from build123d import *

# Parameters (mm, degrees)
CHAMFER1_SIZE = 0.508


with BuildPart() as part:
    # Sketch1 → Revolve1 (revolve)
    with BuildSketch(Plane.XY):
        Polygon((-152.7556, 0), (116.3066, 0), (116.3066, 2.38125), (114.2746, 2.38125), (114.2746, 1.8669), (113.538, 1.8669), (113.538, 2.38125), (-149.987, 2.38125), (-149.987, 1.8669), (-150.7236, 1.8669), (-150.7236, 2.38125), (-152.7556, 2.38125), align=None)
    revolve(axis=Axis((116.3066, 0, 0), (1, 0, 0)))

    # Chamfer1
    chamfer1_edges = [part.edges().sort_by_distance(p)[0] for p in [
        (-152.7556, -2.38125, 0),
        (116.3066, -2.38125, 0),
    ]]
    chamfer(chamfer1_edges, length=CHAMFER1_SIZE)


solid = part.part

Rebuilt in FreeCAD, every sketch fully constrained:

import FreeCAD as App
import Part
import Sketcher

V = App.Vector
Q = App.Units.Quantity


def edges_at(feature, points):
    """Names of the edges that pass closest to the given points."""
    edges = feature.Shape.Edges
    near = lambda p: min(range(len(edges)), key=lambda i: edges[i].distToShape(Part.Vertex(*p))[0])
    return sorted({f"Edge{near(p) + 1}" for p in points})

doc = App.newDocument("Part")
body = doc.addObject("PartDesign::Body", "Body")

sketch1 = body.newObject("Sketcher::SketchObject", "Sketch")
sketch1.AttachmentSupport = (doc.getObject("XY_Plane"), [""])
sketch1.MapMode = "FlatFace"
sketch1.addGeometry([
    Part.LineSegment(V(-152.8, 0, 0), V(116.3, 0, 0)),
    Part.LineSegment(V(116.3, 0, 0), V(116.3, 2.4, 0)),
    Part.LineSegment(V(116.3, 2.4, 0), V(114.3, 2.4, 0)),
    Part.LineSegment(V(114.3, 2.4, 0), V(114.3, 1.9, 0)),
    Part.LineSegment(V(114.3, 1.9, 0), V(113.5, 1.9, 0)),
    Part.LineSegment(V(113.5, 1.9, 0), V(113.5, 2.4, 0)),
    Part.LineSegment(V(113.5, 2.4, 0), V(-150, 2.4, 0)),
    Part.LineSegment(V(-150, 2.4, 0), V(-150, 1.9, 0)),
    Part.LineSegment(V(-150, 1.9, 0), V(-150.7, 1.9, 0)),
    Part.LineSegment(V(-150.7, 1.9, 0), V(-150.7, 2.4, 0)),
    Part.LineSegment(V(-150.7, 2.4, 0), V(-152.8, 2.4, 0)),
    Part.LineSegment(V(-152.8, 2.4, 0), V(-152.8, 0, 0)),
], False)
sketch1.addConstraint([
    Sketcher.Constraint("Coincident", 0, 2, 1, 1),
    Sketcher.Constraint("Coincident", 1, 2, 2, 1),
    Sketcher.Constraint("Coincident", 2, 2, 3, 1),
    Sketcher.Constraint("Coincident", 3, 2, 4, 1),
    Sketcher.Constraint("Coincident", 4, 2, 5, 1),
    Sketcher.Constraint("Coincident", 5, 2, 6, 1),
    Sketcher.Constraint("Coincident", 6, 2, 7, 1),
    Sketcher.Constraint("Coincident", 7, 2, 8, 1),
    Sketcher.Constraint("Coincident", 8, 2, 9, 1),
    Sketcher.Constraint("Coincident", 9, 2, 10, 1),
    Sketcher.Constraint("Coincident", 10, 2, 11, 1),
    Sketcher.Constraint("Coincident", 11, 2, 0, 1),
    Sketcher.Constraint("Horizontal", 0),
    Sketcher.Constraint("Vertical", 1),
    Sketcher.Constraint("Horizontal", 2),
    Sketcher.Constraint("Vertical", 3),
    Sketcher.Constraint("Horizontal", 4),
    Sketcher.Constraint("Vertical", 5),
    Sketcher.Constraint("Horizontal", 6),
    Sketcher.Constraint("Vertical", 7),
    Sketcher.Constraint("Horizontal", 8),
    Sketcher.Constraint("Vertical", 9),
    Sketcher.Constraint("Horizontal", 10),
    Sketcher.Constraint("Vertical", 11),
    Sketcher.Constraint("PointOnObject", 0, 2, -1),
    Sketcher.Constraint("Horizontal", 2, 2, 5, 2),
    Sketcher.Constraint("Horizontal", 4, 2, 7, 2),
    Sketcher.Constraint("Horizontal", 6, 2, 9, 2),
    Sketcher.Constraint("Equal", 4, 8),
    Sketcher.Constraint("Equal", 2, 10),
    Sketcher.Constraint("DistanceX", 2, 2, 2, 1, Q("0.08 in")),
    Sketcher.Constraint("DistanceX", 0, 1, 0, 2, Q("10.593 in")),
    Sketcher.Constraint("DistanceX", 4, 2, 4, 1, Q("0.029 in")),
    Sketcher.Constraint("DistanceY", 1, 1, 1, 2, Q("0.09375 in")),
    Sketcher.Constraint("DistanceX", -1, 1, 4, 2, Q("4.47 in")),
    Sketcher.Constraint("DistanceY", -1, 1, 3, 2, Q("0.0735 in")),
])
revolution = body.newObject("PartDesign::Revolution", "Revolution")
revolution.Profile = sketch1
revolution.ReferenceAxis = (sketch1, ["H_Axis"])
revolution.Angle = 360
doc.recompute()

chamfer = body.newObject("PartDesign::Chamfer", "Chamfer")
chamfer.Base = (revolution, edges_at(revolution, [(-152.756, -2.381, 0), (116.307, -2.381, 0)]))
chamfer.Size = Q("0.02 in")

doc.recompute()
